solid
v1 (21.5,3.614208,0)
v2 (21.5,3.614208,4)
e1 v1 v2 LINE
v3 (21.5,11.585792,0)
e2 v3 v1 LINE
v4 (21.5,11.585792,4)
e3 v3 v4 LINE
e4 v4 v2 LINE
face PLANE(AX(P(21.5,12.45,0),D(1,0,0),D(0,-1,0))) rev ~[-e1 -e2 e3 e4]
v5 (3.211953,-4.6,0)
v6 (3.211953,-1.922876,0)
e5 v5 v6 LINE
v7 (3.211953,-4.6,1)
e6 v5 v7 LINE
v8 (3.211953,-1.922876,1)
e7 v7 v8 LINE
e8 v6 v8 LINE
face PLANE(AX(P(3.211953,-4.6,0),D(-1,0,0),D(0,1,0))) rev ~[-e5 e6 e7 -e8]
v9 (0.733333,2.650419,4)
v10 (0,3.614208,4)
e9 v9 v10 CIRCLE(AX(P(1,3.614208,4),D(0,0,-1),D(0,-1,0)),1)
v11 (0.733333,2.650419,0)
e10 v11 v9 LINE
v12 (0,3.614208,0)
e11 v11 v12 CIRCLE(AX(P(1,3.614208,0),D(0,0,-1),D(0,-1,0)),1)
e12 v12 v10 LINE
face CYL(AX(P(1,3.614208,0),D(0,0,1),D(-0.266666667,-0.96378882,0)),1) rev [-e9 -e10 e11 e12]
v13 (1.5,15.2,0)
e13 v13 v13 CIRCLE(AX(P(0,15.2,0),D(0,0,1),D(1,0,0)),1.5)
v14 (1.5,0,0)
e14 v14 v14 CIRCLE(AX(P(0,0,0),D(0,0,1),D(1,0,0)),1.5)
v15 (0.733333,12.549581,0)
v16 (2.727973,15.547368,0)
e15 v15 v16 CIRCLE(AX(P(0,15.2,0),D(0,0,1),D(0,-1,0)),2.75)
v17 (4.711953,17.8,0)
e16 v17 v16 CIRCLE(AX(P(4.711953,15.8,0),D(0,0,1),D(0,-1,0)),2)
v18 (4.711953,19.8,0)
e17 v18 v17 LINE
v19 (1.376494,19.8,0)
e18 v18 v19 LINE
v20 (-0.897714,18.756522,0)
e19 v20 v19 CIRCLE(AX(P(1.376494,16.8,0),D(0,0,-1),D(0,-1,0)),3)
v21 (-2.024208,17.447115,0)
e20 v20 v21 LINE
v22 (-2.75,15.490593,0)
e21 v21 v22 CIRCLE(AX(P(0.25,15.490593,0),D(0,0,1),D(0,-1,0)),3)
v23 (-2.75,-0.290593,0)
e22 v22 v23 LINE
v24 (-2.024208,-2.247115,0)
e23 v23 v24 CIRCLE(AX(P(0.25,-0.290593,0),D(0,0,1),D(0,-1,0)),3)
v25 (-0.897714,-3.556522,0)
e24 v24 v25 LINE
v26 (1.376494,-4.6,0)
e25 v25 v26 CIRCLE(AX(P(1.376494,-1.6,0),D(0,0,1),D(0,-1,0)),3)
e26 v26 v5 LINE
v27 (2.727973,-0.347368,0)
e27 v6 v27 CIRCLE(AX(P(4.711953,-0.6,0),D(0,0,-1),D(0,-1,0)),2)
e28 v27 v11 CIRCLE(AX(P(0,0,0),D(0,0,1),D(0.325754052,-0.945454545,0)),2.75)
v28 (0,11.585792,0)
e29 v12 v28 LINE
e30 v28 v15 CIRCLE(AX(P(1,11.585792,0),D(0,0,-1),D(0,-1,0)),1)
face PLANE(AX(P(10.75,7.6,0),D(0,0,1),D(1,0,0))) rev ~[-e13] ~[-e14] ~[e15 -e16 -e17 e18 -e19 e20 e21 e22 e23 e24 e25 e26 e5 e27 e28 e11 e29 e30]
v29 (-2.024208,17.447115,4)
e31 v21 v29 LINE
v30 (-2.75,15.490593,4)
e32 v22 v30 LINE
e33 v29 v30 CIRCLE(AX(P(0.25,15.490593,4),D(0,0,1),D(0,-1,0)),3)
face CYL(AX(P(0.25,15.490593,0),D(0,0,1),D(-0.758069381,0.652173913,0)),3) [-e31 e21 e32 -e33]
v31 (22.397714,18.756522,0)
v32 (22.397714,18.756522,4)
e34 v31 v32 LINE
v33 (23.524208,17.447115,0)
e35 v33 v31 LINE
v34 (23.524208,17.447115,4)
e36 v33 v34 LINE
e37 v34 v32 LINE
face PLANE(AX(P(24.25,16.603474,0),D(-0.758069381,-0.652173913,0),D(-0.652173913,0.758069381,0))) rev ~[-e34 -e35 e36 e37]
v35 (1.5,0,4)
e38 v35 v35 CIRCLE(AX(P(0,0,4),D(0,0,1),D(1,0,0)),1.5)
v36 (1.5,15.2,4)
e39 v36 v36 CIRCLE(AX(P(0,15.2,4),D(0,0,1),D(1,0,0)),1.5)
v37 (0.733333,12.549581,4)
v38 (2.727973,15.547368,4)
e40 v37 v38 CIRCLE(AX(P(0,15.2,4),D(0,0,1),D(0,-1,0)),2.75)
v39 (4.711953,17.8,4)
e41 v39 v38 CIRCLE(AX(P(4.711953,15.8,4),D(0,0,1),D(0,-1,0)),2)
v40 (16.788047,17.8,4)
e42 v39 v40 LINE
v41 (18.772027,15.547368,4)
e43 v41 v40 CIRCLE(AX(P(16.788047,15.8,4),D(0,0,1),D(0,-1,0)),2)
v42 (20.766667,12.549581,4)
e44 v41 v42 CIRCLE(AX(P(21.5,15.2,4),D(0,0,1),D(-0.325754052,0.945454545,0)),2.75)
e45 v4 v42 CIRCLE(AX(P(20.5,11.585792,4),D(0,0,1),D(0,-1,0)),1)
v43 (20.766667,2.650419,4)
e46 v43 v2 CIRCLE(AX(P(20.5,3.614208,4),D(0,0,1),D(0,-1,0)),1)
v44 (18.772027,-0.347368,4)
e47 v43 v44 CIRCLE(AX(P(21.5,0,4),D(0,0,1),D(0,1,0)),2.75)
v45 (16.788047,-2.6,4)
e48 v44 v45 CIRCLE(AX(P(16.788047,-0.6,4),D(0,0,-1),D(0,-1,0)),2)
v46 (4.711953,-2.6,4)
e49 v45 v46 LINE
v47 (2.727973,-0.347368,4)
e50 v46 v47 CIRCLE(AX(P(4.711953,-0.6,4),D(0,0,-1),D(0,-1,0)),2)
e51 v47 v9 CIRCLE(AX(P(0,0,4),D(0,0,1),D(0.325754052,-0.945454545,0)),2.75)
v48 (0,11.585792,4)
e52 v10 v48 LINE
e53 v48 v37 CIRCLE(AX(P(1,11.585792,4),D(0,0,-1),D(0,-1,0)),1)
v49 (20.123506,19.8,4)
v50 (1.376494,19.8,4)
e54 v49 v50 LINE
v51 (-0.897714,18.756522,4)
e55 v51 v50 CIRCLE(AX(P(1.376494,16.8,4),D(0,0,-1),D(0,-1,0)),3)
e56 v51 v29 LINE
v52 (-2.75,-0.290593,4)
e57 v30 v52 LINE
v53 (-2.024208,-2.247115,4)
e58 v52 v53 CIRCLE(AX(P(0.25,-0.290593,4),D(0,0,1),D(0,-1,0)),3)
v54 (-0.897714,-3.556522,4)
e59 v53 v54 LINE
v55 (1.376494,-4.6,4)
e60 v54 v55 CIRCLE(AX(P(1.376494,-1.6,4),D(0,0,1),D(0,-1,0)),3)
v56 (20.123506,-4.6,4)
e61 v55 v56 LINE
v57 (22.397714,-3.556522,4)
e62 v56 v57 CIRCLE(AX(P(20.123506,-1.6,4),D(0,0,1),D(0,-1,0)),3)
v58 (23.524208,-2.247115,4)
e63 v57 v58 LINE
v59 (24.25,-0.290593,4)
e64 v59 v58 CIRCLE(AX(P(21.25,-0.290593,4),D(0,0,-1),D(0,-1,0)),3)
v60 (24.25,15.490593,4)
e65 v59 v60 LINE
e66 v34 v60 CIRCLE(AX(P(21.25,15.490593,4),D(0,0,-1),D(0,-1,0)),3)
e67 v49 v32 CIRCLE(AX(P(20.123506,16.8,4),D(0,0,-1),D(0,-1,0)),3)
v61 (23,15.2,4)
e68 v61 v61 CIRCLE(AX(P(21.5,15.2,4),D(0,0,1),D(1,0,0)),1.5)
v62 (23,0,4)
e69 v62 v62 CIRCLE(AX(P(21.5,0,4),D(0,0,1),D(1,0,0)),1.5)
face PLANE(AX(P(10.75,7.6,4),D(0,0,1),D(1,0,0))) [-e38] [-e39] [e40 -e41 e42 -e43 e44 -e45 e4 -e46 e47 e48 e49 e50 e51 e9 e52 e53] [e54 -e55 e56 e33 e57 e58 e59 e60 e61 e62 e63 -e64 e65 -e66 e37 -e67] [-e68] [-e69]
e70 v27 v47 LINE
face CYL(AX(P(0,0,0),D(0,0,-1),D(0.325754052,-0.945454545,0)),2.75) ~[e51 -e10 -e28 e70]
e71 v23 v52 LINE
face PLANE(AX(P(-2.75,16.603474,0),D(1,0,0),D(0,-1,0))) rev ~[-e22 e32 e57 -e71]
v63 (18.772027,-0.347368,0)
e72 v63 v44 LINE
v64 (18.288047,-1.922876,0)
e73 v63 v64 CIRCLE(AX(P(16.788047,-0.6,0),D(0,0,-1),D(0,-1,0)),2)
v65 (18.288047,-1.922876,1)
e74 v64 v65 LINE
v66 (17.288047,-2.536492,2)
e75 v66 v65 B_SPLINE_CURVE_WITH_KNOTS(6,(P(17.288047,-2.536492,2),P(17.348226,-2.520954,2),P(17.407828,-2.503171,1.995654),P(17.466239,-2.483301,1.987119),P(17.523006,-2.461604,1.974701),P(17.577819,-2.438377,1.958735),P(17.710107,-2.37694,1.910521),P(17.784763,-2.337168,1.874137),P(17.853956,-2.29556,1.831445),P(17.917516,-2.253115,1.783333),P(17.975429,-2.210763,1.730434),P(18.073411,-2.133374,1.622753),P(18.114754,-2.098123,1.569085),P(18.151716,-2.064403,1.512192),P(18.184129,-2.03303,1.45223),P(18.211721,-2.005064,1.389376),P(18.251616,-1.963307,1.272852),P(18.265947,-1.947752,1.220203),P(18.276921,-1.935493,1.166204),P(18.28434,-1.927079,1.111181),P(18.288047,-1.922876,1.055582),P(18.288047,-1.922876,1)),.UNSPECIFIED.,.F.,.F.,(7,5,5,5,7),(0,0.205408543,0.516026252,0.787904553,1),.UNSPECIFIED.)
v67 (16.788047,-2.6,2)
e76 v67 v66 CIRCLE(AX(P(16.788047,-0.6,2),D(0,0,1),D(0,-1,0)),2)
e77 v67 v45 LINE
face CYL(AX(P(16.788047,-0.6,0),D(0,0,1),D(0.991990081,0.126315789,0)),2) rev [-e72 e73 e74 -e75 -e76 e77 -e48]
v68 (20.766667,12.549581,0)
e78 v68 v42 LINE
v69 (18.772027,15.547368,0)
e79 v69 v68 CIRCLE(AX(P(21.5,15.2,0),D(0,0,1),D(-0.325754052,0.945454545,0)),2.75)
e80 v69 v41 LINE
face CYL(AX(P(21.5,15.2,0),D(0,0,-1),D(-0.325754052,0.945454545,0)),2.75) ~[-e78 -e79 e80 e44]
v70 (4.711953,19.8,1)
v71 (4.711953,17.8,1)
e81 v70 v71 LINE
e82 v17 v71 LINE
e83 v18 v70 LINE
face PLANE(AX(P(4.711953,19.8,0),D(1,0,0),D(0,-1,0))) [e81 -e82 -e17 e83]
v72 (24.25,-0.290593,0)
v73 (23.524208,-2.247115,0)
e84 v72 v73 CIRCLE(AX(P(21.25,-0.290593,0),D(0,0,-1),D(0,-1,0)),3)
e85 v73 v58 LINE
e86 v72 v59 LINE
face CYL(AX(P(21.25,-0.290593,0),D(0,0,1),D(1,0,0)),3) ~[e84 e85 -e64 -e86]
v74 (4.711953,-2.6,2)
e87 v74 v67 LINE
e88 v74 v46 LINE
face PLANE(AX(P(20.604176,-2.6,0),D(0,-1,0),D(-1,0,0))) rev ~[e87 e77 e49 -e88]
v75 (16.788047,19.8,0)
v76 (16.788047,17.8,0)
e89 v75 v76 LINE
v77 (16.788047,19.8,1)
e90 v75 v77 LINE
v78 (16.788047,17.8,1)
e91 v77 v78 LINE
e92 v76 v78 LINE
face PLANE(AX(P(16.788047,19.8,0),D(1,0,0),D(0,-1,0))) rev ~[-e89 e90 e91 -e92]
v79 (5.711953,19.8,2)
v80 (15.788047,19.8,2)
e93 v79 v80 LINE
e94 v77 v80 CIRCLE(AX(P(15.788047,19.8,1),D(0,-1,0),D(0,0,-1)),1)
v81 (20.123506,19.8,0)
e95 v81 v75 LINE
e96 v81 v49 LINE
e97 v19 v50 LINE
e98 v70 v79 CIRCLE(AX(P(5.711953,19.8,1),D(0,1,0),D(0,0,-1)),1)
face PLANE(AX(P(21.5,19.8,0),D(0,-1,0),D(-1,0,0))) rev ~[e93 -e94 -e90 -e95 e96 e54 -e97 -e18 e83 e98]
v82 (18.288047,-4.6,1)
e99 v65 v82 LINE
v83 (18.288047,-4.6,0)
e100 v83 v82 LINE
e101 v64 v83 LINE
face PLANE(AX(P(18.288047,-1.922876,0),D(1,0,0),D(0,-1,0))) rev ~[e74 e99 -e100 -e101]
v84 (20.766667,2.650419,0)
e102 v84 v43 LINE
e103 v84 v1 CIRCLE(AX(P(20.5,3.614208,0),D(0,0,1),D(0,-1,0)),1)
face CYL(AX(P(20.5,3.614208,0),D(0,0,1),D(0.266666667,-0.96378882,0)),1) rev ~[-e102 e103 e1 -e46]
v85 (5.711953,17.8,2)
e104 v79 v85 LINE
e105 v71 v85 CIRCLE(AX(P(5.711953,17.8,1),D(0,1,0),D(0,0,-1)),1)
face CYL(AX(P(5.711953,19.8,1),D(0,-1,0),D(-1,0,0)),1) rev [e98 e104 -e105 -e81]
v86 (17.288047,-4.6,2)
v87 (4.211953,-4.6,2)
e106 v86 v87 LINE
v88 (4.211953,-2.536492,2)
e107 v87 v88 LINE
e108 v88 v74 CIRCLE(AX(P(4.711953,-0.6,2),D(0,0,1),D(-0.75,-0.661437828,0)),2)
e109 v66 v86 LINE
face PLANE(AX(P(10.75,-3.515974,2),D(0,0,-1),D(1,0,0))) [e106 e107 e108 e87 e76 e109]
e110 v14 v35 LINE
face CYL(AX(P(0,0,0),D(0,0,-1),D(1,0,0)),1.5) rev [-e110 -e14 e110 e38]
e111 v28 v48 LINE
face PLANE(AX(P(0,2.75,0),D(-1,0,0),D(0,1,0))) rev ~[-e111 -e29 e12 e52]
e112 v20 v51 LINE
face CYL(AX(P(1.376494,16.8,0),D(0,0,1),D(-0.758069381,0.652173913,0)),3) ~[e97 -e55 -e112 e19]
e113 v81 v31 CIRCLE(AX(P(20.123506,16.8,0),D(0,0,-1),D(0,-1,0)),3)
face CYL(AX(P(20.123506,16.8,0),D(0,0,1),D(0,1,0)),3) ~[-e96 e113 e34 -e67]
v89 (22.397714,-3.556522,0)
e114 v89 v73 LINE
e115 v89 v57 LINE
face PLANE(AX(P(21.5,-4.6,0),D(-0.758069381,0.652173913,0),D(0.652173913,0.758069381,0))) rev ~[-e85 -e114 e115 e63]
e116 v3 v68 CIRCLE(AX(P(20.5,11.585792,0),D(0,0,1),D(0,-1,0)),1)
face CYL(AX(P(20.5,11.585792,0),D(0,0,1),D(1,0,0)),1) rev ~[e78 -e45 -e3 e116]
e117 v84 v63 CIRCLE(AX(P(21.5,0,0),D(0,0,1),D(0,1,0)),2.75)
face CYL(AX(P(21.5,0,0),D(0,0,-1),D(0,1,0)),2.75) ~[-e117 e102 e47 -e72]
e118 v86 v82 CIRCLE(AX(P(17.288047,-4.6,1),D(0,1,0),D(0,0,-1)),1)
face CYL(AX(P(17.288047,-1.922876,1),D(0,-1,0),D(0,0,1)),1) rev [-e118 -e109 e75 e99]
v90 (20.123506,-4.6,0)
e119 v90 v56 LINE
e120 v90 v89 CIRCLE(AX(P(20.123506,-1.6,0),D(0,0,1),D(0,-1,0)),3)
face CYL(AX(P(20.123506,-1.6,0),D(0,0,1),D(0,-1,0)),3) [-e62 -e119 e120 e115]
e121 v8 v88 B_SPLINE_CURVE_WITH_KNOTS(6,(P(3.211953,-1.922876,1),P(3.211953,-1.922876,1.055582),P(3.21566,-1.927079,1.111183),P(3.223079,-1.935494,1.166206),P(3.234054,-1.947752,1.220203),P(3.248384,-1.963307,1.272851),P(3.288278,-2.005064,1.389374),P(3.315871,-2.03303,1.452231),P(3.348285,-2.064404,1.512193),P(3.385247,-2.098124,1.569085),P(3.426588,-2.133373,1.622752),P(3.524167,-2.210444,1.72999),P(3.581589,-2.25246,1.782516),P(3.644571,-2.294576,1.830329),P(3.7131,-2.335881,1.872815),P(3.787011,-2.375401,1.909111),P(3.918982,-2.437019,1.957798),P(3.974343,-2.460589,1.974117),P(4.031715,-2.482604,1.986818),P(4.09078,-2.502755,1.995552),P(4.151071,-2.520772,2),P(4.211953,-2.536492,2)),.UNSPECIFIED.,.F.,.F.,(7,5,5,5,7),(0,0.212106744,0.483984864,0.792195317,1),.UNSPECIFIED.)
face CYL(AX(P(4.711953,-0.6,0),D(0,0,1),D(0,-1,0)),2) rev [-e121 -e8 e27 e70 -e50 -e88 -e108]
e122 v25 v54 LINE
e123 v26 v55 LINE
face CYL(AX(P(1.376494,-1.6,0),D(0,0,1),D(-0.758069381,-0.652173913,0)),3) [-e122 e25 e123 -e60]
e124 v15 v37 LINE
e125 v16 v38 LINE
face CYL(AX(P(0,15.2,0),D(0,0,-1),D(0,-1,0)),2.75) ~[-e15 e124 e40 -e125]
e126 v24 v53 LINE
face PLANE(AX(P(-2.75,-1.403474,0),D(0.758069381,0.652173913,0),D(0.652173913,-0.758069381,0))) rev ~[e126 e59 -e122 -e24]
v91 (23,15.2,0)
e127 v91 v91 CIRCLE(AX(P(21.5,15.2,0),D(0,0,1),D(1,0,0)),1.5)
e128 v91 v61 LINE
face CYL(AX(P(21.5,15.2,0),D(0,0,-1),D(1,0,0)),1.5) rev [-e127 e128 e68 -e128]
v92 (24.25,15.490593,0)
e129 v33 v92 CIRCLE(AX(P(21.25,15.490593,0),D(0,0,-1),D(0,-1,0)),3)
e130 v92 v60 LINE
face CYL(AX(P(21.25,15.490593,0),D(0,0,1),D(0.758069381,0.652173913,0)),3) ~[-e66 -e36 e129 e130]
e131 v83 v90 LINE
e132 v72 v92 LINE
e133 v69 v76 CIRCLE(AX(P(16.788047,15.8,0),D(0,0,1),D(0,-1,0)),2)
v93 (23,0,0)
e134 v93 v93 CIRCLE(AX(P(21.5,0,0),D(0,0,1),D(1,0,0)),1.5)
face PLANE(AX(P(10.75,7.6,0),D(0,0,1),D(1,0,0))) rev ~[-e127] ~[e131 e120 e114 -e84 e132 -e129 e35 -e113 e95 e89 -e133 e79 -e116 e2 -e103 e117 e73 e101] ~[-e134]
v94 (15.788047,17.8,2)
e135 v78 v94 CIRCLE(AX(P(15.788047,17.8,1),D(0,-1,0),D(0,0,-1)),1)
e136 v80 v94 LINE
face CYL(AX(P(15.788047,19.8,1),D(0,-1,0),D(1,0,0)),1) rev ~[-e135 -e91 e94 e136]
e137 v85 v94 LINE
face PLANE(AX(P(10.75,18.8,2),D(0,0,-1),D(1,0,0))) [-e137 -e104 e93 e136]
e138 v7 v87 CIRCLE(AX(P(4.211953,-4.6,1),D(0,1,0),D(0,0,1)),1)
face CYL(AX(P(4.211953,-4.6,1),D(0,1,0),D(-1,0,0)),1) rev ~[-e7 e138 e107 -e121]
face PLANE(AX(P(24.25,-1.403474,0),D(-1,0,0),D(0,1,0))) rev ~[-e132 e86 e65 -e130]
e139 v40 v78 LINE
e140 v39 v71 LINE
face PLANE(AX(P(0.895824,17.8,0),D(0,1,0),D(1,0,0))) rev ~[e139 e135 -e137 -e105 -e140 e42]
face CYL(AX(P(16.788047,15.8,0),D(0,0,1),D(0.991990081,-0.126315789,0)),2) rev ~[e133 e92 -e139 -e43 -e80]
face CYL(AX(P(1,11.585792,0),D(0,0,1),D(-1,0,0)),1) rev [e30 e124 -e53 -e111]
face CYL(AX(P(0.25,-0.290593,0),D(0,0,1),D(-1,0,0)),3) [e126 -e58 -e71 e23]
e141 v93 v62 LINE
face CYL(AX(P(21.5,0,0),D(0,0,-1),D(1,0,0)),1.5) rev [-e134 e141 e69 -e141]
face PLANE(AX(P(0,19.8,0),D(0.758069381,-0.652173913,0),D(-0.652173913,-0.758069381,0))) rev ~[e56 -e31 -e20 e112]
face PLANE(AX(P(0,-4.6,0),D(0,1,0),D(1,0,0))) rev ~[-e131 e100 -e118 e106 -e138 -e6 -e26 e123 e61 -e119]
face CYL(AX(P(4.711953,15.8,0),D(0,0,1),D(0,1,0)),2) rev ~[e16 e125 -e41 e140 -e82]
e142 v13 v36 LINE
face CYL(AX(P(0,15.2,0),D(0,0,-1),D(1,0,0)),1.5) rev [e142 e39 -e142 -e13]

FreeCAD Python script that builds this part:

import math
import FreeCAD as App
import Part
import Sketcher


def edges_at(feature, points):
    """Names of the edges that pass closest to the given points."""
    edges = feature.Shape.Edges
    near = lambda p: min(range(len(edges)), key=lambda i: edges[i].distToShape(Part.Vertex(*p))[0])
    return sorted({f"Edge{near(p) + 1}" for p in points})


def add_polygon(sketch, points):
    """Adds a closed chain of lines whose ends are joined by coincident constraints."""
    first, n = sketch.GeometryCount, len(points)
    for a, b in zip(points, points[1:] + points[:1]):
        sketch.addGeometry(Part.LineSegment(App.Vector(*a, 0), App.Vector(*b, 0)), False)
    for i in range(n):
        sketch.addConstraint(Sketcher.Constraint("Coincident", first + i, 2, first + (i + 1) % n, 1))

doc = App.newDocument("Part")
body = doc.addObject("PartDesign::Body", "Body")

# Sketch on XY plane
sketch1 = doc.addObject("Sketcher::SketchObject", "Sketch")
body.addObject(sketch1)
sketch1.AttachmentSupport = (doc.XY_Plane, [""])
sketch1.MapMode = "FlatFace"
add_polygon(sketch1, [(0, 19.8), (-2.75, 16.603474), (-2.75, -1.403474), (0, -4.6), (21.5, -4.6), (24.25, -1.403474), (24.25, 16.603474), (21.5, 19.8)])  # lines 0-7
sketch1.addGeometry(Part.Circle(App.Vector(0, 0, 0), App.Vector(0, 0, 1), 1.5), False)  # 8
sketch1.addGeometry(Part.Circle(App.Vector(21.5, 0, 0), App.Vector(0, 0, 1), 1.5), False)  # 9
sketch1.addGeometry(Part.ArcOfCircle(Part.Circle(App.Vector(21.5, 0, 0), App.Vector(0, 0, 1), 2.75), math.radians(90), math.radians(250.988735)), False)  # 10
sketch1.addGeometry(Part.LineSegment(App.Vector(20.604176, -2.6, 0), App.Vector(0.895824, -2.6, 0)), False)  # 11
sketch1.addGeometry(Part.ArcOfCircle(Part.Circle(App.Vector(0, 0, 0), App.Vector(0, 0, 1), 2.75), math.radians(-70.988735), math.radians(90)), False)  # 12
sketch1.addGeometry(Part.LineSegment(App.Vector(0, 2.75, 0), App.Vector(0, 12.45, 0)), False)  # 13
sketch1.addGeometry(Part.ArcOfCircle(Part.Circle(App.Vector(0, 15.2, 0), App.Vector(0, 0, 1), 2.75), math.radians(-90), math.radians(70.988735)), False)  # 14
sketch1.addGeometry(Part.LineSegment(App.Vector(0.895824, 17.8, 0), App.Vector(20.604176, 17.8, 0)), False)  # 15
sketch1.addGeometry(Part.ArcOfCircle(Part.Circle(App.Vector(21.5, 15.2, 0), App.Vector(0, 0, 1), 2.75), math.radians(109.011265), math.radians(270)), False)  # 16
sketch1.addGeometry(Part.LineSegment(App.Vector(21.5, 12.45, 0), App.Vector(21.5, 2.75, 0)), False)  # 17
sketch1.addGeometry(Part.Circle(App.Vector(0, 15.2, 0), App.Vector(0, 0, 1), 1.5), False)  # 18
sketch1.addGeometry(Part.Circle(App.Vector(21.5, 15.2, 0), App.Vector(0, 0, 1), 1.5), False)  # 19
sketch1.addConstraint([
    Sketcher.Constraint("Coincident", 10, 2, 11, 1),
    Sketcher.Constraint("Coincident", 11, 2, 12, 1),
    Sketcher.Constraint("Coincident", 12, 2, 13, 1),
    Sketcher.Constraint("Coincident", 13, 2, 14, 1),
    Sketcher.Constraint("Coincident", 14, 2, 15, 1),
    Sketcher.Constraint("Coincident", 15, 2, 16, 1),
    Sketcher.Constraint("Coincident", 16, 2, 17, 1),
    Sketcher.Constraint("Coincident", 17, 2, 10, 1),
    Sketcher.Constraint("Vertical", 1),
    Sketcher.Constraint("Horizontal", 3),
    Sketcher.Constraint("Vertical", 5),
    Sketcher.Constraint("Horizontal", 7),
    Sketcher.Constraint("Horizontal", 11),
    Sketcher.Constraint("Vertical", 13),
    Sketcher.Constraint("Horizontal", 15),
    Sketcher.Constraint("Vertical", 17),
    Sketcher.Constraint("Coincident", 8, 3, -1, 1),
    Sketcher.Constraint("Coincident", 12, 3, -1, 1),
    Sketcher.Constraint("Coincident", 10, 3, 9, 3),
    Sketcher.Constraint("Coincident", 18, 3, 14, 3),
    Sketcher.Constraint("Coincident", 19, 3, 16, 3),
    Sketcher.Constraint("Equal", 8, 9),
    Sketcher.Constraint("Equal", 10, 12),
    Sketcher.Constraint("Equal", 12, 14),
    Sketcher.Constraint("Equal", 14, 16),
    Sketcher.Constraint("Equal", 9, 18),
    Sketcher.Constraint("Equal", 18, 19),
    Sketcher.Constraint("PointOnObject", 9, 3, -1),
    Sketcher.Constraint("PointOnObject", 14, 3, -2),
    Sketcher.Constraint("PointOnObject", 2, 2, -2),
    Sketcher.Constraint("PointOnObject", 7, 2, -2),
    Sketcher.Constraint("PointOnObject", 12, 2, -2),
    Sketcher.Constraint("Parallel", 0, 4),
    Sketcher.Constraint("Parallel", 2, 6),
    Sketcher.Constraint("Horizontal", 14, 3, 16, 3),
    Sketcher.Constraint("Horizontal", 1, 2, 4, 2),
    Sketcher.Constraint("Horizontal", 0, 2, 5, 2),
    Sketcher.Constraint("Vertical", 10, 3, 16, 3),
    Sketcher.Constraint("Vertical", 19, 3, 3, 2),
    Sketcher.Constraint("Vertical", 3, 2, 6, 2),
    Sketcher.Constraint("Vertical", 11, 2, 14, 2),
    Sketcher.Constraint("Vertical", 6, 2, 16, 2),
    Sketcher.Constraint("Diameter", 8, 3.0),
    Sketcher.Constraint("Radius", 10, 2.75),
    Sketcher.Constraint("DistanceX", 3, 1, 3, 2, 21.5),
    Sketcher.Constraint("DistanceY", 13, 1, 13, 2, 9.7),
    Sketcher.Constraint("DistanceY", 3, 2, 10, 2, 2.0),
    Sketcher.Constraint("DistanceY", 14, 2, 7, 2, 2.0),
    Sketcher.Constraint("DistanceY", 2, 2, -1, 1, 4.6),
    Sketcher.Constraint("DistanceX", 0, 2, -1, 1, 2.75),
    Sketcher.Constraint("DistanceY", 1, 2, 1, 1, 18.006948),
])
pad1 = doc.addObject("PartDesign::Pad", "Pad")
body.addObject(pad1)
pad1.Profile = sketch1
pad1.Length = 4
doc.recompute()

fillet = doc.addObject("PartDesign::Fillet", "Fillet")
body.addObject(fillet)
fillet.Base = (pad1, edges_at(pad1, [
    (0.896, 17.8, 2),
    (20.604, 17.8, 2),
    (0.896, -2.6, 2),
    (20.604, -2.6, 2),
]))
fillet.Radius = 2
doc.recompute()

fillet2 = doc.addObject("PartDesign::Fillet", "Fillet001")
body.addObject(fillet2)
fillet2.Base = (fillet, edges_at(fillet, [
    (0, 12.45, 2),
    (0, 2.75, 2),
    (21.5, 12.45, 2),
    (21.5, 2.75, 2),
]))
fillet2.Radius = 1
doc.recompute()

fillet3 = doc.addObject("PartDesign::Fillet", "Fillet002")
body.addObject(fillet3)
fillet3.Base = (fillet2, edges_at(fillet2, [
    (0, -4.6, 2),
    (21.5, -4.6, 2),
    (24.25, -1.403, 2),
    (24.25, 16.603, 2),
    (21.5, 19.8, 2),
    (0, 19.8, 2),
    (-2.75, 16.603, 2),
    (-2.75, -1.403, 2),
]))
fillet3.Radius = 3

# Sketch on XY plane
sketch2 = doc.addObject("Sketcher::SketchObject", "Sketch001")
body.addObject(sketch2)
sketch2.AttachmentSupport = (doc.XY_Plane, [""])
sketch2.MapMode = "FlatFace"
add_polygon(sketch2, [(4.711953, 17.8), (4.711953, 19.8), (16.788047, 19.8), (16.788047, 17.8)])  # lines 0-3
sketch2.addGeometry(Part.LineSegment(App.Vector(3.211953, -4.6, 0), App.Vector(3.211953, -1.922876, 0)), False)  # 4
sketch2.addGeometry(Part.ArcOfCircle(Part.Circle(App.Vector(4.711953, -0.6, 0), App.Vector(0, 0, 1), 2), math.radians(-138.590378), math.radians(-90)), False)  # 5
sketch2.addGeometry(Part.LineSegment(App.Vector(4.711953, -2.6, 0), App.Vector(16.788047, -2.6, 0)), False)  # 6
sketch2.addGeometry(Part.ArcOfCircle(Part.Circle(App.Vector(16.788047, -0.6, 0), App.Vector(0, 0, 1), 2), math.radians(-90), math.radians(-41.409622)), False)  # 7
sketch2.addGeometry(Part.LineSegment(App.Vector(18.288047, -1.922876, 0), App.Vector(18.288047, -4.6, 0)), False)  # 8
sketch2.addGeometry(Part.LineSegment(App.Vector(18.288047, -4.6, 0), App.Vector(3.211953, -4.6, 0)), False)  # 9
sketch2.addConstraint([
    Sketcher.Constraint("Coincident", 4, 2, 5, 1),
    Sketcher.Constraint("Tangent", 5, 2, 6, 1),
    Sketcher.Constraint("Tangent", 6, 2, 7, 1),
    Sketcher.Constraint("Coincident", 7, 2, 8, 1),
    Sketcher.Constraint("Coincident", 8, 2, 9, 1),
    Sketcher.Constraint("Coincident", 9, 2, 4, 1),
    Sketcher.Constraint("Vertical", 0),
    Sketcher.Constraint("Horizontal", 1),
    Sketcher.Constraint("Vertical", 2),
    Sketcher.Constraint("Horizontal", 3),
    Sketcher.Constraint("Vertical", 4),
    Sketcher.Constraint("Horizontal", 6),
    Sketcher.Constraint("Vertical", 8),
    Sketcher.Constraint("Horizontal", 9),
    Sketcher.Constraint("Equal", 5, 7),
    Sketcher.Constraint("Horizontal", 4, 2, 7, 2),
    Sketcher.Constraint("Vertical", 5, 3, 0, 2),
    Sketcher.Constraint("Vertical", 7, 3, 1, 2),
    Sketcher.Constraint("Radius", 5, 2.0),
    Sketcher.Constraint("DistanceY", 0, 1, 0, 2, 2.0),
    Sketcher.Constraint("DistanceY", 8, 2, 6, 2, 2.0),
    Sketcher.Constraint("DistanceY", 5, 3, -1, 1, 0.6),
    Sketcher.Constraint("DistanceY", -1, 1, 0, 2, 19.8),
    Sketcher.Constraint("DistanceX", 4, 2, 5, 3, 1.5),
    Sketcher.Constraint("DistanceX", 1, 1, 1, 2, 12.076094),
    Sketcher.Constraint("DistanceX", -1, 1, 5, 3, 4.711953),
])
pocket1 = doc.addObject("PartDesign::Pocket", "Pocket")
body.addObject(pocket1)
pocket1.Profile = sketch2
pocket1.Length = 2
pocket1.Reversed = True
doc.recompute()

fillet4 = doc.addObject("PartDesign::Fillet", "Fillet003")
body.addObject(fillet4)
fillet4.Base = (pocket1, edges_at(pocket1, [
    (4.712, 18.8, 2),
    (16.788, 18.8, 2),
    (18.288, -3.261, 2),
    (3.212, -3.261, 2),
]))
fillet4.Radius = 1

doc.recompute()
